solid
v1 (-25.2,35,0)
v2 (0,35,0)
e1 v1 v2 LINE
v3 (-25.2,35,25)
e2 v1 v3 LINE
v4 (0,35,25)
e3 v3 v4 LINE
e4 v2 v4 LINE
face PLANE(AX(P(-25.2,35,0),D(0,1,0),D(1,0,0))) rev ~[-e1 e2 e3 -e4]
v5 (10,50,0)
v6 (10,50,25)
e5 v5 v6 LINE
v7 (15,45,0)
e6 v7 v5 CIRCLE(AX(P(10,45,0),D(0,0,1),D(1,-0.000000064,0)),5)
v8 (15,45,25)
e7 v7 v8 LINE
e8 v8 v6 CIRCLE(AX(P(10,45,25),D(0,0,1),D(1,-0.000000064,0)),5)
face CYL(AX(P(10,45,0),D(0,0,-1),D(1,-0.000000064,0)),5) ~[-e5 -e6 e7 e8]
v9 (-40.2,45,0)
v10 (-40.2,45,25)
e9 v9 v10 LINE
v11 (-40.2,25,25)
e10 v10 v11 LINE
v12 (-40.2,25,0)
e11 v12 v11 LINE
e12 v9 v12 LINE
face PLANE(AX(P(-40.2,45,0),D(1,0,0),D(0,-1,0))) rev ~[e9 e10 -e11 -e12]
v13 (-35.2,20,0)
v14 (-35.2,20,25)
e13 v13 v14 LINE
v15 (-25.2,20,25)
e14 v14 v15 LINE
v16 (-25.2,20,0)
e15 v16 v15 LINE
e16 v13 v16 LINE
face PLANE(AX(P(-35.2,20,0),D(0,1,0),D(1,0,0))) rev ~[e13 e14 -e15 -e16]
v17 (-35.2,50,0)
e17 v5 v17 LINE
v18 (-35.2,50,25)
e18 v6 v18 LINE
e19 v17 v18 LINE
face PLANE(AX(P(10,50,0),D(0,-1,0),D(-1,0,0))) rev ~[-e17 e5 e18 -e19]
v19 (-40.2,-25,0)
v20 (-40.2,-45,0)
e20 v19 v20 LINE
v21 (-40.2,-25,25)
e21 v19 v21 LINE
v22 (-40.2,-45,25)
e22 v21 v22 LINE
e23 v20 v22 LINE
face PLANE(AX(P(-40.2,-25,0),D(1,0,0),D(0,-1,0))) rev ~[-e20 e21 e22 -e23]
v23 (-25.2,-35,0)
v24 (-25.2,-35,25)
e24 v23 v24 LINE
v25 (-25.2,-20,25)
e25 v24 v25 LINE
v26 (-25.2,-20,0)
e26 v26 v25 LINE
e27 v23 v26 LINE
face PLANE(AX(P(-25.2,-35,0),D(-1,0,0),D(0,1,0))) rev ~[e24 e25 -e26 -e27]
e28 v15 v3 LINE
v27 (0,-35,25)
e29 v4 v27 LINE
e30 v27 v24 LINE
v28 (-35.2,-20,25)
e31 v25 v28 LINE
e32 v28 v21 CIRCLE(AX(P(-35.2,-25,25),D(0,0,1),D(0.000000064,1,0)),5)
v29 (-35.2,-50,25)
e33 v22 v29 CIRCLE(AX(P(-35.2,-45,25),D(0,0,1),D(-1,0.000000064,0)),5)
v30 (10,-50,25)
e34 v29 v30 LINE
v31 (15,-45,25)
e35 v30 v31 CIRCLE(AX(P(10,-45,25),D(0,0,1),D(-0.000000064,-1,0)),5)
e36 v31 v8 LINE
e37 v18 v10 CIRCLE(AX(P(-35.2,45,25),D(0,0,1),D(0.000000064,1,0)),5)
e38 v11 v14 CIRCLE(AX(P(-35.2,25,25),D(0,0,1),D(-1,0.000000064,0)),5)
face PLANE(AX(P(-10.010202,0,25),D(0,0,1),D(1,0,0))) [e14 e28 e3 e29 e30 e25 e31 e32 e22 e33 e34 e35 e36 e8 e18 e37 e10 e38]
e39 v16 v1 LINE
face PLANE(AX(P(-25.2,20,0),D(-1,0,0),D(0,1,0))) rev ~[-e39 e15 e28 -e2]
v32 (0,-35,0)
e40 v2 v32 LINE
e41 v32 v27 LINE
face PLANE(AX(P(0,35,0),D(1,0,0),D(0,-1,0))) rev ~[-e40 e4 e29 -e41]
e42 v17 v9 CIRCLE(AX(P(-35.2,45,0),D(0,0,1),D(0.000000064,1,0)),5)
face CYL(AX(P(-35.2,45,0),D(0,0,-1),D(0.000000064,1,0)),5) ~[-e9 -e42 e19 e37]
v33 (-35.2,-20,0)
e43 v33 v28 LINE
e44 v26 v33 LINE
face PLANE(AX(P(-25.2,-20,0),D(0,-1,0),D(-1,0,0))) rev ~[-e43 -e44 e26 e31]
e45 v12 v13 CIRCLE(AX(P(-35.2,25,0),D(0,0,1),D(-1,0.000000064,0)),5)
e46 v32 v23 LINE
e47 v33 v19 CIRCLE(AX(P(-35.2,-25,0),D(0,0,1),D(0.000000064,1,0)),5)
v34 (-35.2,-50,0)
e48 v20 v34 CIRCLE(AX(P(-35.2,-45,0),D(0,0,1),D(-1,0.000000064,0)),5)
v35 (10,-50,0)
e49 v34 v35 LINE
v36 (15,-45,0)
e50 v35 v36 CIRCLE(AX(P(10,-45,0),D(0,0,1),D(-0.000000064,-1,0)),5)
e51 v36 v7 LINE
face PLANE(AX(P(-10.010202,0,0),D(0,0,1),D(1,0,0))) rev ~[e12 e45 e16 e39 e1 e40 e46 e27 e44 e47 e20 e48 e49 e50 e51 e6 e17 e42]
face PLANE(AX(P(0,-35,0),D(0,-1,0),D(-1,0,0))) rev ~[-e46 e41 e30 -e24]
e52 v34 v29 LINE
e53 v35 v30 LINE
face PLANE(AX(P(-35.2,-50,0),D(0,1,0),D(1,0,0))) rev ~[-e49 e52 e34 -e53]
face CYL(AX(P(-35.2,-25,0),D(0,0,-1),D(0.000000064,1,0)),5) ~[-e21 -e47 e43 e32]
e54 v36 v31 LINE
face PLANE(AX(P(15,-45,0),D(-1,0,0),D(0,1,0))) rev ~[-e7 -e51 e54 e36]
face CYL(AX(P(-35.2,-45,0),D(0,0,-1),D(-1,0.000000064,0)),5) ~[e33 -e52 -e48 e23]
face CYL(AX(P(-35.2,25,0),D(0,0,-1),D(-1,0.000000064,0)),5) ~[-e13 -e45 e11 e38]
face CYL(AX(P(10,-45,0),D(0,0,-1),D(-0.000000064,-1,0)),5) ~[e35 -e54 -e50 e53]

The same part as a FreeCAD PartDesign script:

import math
import FreeCAD as App
import Part
import Sketcher
Q = App.Units.Quantity

doc = App.newDocument("Part")
body = doc.addObject("PartDesign::Body", "Body")

sketch1 = body.newObject("Sketcher::SketchObject", "Sketch")
sketch1.AttachmentSupport = (doc.getObject("XY_Plane"), [""])
sketch1.MapMode = "FlatFace"
sketch1.addGeometry([
    Part.LineSegment(App.Vector(0, 35, 0), App.Vector(0, -35, 0)),
    Part.LineSegment(App.Vector(0, -35, 0), App.Vector(-25.2, -35, 0)),
    Part.LineSegment(App.Vector(-25.2, -35, 0), App.Vector(-25.2, -20, 0)),
    Part.LineSegment(App.Vector(-25.2, -20, 0), App.Vector(-35.2, -20, 0)),
    Part.ArcOfCircle(Part.Circle(App.Vector(-35.2, -25, 0), App.Vector(0, 0, 1), 5), math.radians(89.999996), math.radians(180.000004)),
    Part.LineSegment(App.Vector(-40.2, -25, 0), App.Vector(-40.2, -45, 0)),
    Part.ArcOfCircle(Part.Circle(App.Vector(-35.2, -45, 0), App.Vector(0, 0, 1), 5), math.radians(179.999996), math.radians(270.000004)),
    Part.LineSegment(App.Vector(-35.2, -50, 0), App.Vector(10, -50, 0)),
    Part.ArcOfCircle(Part.Circle(App.Vector(10, -45, 0), App.Vector(0, 0, 1), 5), math.radians(-90.000004), math.radians(0.000004)),
    Part.LineSegment(App.Vector(15, -45, 0), App.Vector(15, 45, 0)),
    Part.ArcOfCircle(Part.Circle(App.Vector(10, 45, 0), App.Vector(0, 0, 1), 5), math.radians(-0.000004), math.radians(90.000004)),
    Part.LineSegment(App.Vector(10, 50, 0), App.Vector(-35.2, 50, 0)),
    Part.ArcOfCircle(Part.Circle(App.Vector(-35.2, 45, 0), App.Vector(0, 0, 1), 5), math.radians(89.999996), math.radians(180.000004)),
    Part.LineSegment(App.Vector(-40.2, 45, 0), App.Vector(-40.2, 25, 0)),
    Part.ArcOfCircle(Part.Circle(App.Vector(-35.2, 25, 0), App.Vector(0, 0, 1), 5), math.radians(179.999996), math.radians(270.000004)),
    Part.LineSegment(App.Vector(-35.2, 20, 0), App.Vector(-25.2, 20, 0)),
    Part.LineSegment(App.Vector(-25.2, 20, 0), App.Vector(-25.2, 35, 0)),
    Part.LineSegment(App.Vector(-25.2, 35, 0), App.Vector(0, 35, 0)),
], False)
sketch1.addConstraint([
    Sketcher.Constraint("Coincident", 0, 2, 1, 1),
    Sketcher.Constraint("Coincident", 1, 2, 2, 1),
    Sketcher.Constraint("Coincident", 2, 2, 3, 1),
    Sketcher.Constraint("Tangent", 3, 2, 4, 1),
    Sketcher.Constraint("Tangent", 4, 2, 5, 1),
    Sketcher.Constraint("Tangent", 5, 2, 6, 1),
    Sketcher.Constraint("Tangent", 6, 2, 7, 1),
    Sketcher.Constraint("Tangent", 7, 2, 8, 1),
    Sketcher.Constraint("Tangent", 8, 2, 9, 1),
    Sketcher.Constraint("Tangent", 9, 2, 10, 1),
    Sketcher.Constraint("Tangent", 10, 2, 11, 1),
    Sketcher.Constraint("Tangent", 11, 2, 12, 1),
    Sketcher.Constraint("Tangent", 12, 2, 13, 1),
    Sketcher.Constraint("Tangent", 13, 2, 14, 1),
    Sketcher.Constraint("Tangent", 14, 2, 15, 1),
    Sketcher.Constraint("Coincident", 15, 2, 16, 1),
    Sketcher.Constraint("Coincident", 16, 2, 17, 1),
    Sketcher.Constraint("Coincident", 17, 2, 0, 1),
    Sketcher.Constraint("Vertical", 0),
    Sketcher.Constraint("Horizontal", 1),
    Sketcher.Constraint("Vertical", 2),
    Sketcher.Constraint("Horizontal", 3),
    Sketcher.Constraint("Vertical", 5),
    Sketcher.Constraint("Horizontal", 7),
    Sketcher.Constraint("Vertical", 9),
    Sketcher.Constraint("Horizontal", 11),
    Sketcher.Constraint("Vertical", 13),
    Sketcher.Constraint("Horizontal", 15),
    Sketcher.Constraint("Vertical", 16),
    Sketcher.Constraint("Horizontal", 17),
    Sketcher.Constraint("Equal", 4, 6),
    Sketcher.Constraint("Equal", 6, 8),
    Sketcher.Constraint("Equal", 8, 10),
    Sketcher.Constraint("Equal", 10, 12),
    Sketcher.Constraint("Equal", 12, 14),
    Sketcher.Constraint("Symmetric", 0, 2, 17, 2, -1, 1),
    Sketcher.Constraint("Symmetric", 6, 3, 12, 3, -1),
    Sketcher.Constraint("Symmetric", 2, 2, 15, 2, -1),
    Sketcher.Constraint("Radius", 4, Q("5 mm")),
    Sketcher.Constraint("DistanceX", 3, 2, 3, 1, Q("10 mm")),
    Sketcher.Constraint("DistanceY", 0, 2, 0, 1, Q("70 mm")),
    Sketcher.Constraint("DistanceY", 2, 1, 2, 2, Q("15 mm")),
    Sketcher.Constraint("DistanceY", 5, 2, 5, 1, Q("20 mm")),
    Sketcher.Constraint("DistanceX", 1, 2, 1, 1, Q("25.2 mm")),
    Sketcher.Constraint("DistanceX", 7, 1, 7, 2, Q("45.2 mm")),
])
pad1 = body.newObject("PartDesign::Pad", "Pad")
pad1.Profile = sketch1
pad1.Length = 25

doc.recompute()
